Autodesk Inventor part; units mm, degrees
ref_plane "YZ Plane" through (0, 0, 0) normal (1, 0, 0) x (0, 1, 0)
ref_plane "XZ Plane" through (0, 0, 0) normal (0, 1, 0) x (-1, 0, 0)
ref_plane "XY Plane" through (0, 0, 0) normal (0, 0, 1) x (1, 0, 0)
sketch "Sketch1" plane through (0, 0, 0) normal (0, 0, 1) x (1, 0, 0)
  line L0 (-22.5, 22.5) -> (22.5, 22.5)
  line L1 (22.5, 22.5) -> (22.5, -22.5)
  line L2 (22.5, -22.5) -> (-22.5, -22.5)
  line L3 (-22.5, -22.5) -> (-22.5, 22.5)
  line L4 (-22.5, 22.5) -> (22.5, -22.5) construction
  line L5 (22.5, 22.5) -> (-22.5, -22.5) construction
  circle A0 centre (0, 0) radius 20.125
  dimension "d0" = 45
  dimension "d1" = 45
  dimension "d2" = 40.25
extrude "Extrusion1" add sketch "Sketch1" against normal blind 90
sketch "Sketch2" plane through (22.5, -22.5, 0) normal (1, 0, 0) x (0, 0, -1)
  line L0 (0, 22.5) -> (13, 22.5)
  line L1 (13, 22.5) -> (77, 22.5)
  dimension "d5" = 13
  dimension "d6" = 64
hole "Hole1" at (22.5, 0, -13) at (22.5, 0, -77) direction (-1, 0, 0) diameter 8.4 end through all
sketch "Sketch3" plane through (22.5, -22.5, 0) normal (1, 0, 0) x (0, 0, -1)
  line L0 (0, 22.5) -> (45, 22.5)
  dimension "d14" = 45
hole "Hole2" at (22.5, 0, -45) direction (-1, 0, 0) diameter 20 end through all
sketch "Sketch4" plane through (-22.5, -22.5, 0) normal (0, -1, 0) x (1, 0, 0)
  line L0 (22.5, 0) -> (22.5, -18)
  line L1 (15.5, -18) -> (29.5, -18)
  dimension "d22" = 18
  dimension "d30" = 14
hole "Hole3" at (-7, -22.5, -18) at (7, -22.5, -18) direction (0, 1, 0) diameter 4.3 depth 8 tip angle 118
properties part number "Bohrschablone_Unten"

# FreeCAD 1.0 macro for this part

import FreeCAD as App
import Part
import Sketcher
Q = App.Units.Quantity

doc = App.newDocument("Part")
body = doc.addObject("PartDesign::Body", "Body")

sketch1 = body.newObject("Sketcher::SketchObject", "Sketch")
sketch1.AttachmentSupport = (doc.getObject("XY_Plane"), [""])
sketch1.MapMode = "FlatFace"
sketch1.addGeometry([
    Part.LineSegment(App.Vector(22, 22, 0), App.Vector(-22, 22, 0)),
    Part.LineSegment(App.Vector(-22, 22, 0), App.Vector(-22, -22, 0)),
    Part.LineSegment(App.Vector(-22, -22, 0), App.Vector(22, -22, 0)),
    Part.LineSegment(App.Vector(22, -22, 0), App.Vector(22, 22, 0)),
    Part.Circle(App.Vector(0, 0, 0), App.Vector(0, 0, 1), 20),
], False)
sketch1.addConstraint([
    Sketcher.Constraint("Coincident", 0, 2, 1, 1),
    Sketcher.Constraint("Coincident", 1, 2, 2, 1),
    Sketcher.Constraint("Coincident", 2, 2, 3, 1),
    Sketcher.Constraint("Coincident", 3, 2, 0, 1),
    Sketcher.Constraint("Horizontal", 0),
    Sketcher.Constraint("Vertical", 1),
    Sketcher.Constraint("Horizontal", 2),
    Sketcher.Constraint("Vertical", 3),
    Sketcher.Constraint("Coincident", 4, 3, -1, 1),
    Sketcher.Constraint("Symmetric", 0, 2, 2, 2, -1, 1),
    Sketcher.Constraint("Equal", 2, 1),
    Sketcher.Constraint("Diameter", 4, Q("40.25 mm")),
    Sketcher.Constraint("DistanceX", 0, 2, 0, 1, Q("45 mm")),
])
pad1 = body.newObject("PartDesign::Pad", "Pad")
pad1.Profile = sketch1
pad1.Length = 90
pad1.Reversed = True

sketch2 = body.newObject("Sketcher::SketchObject", "Sketch001")
sketch2.AttachmentSupport = (doc.getObject("YZ_Plane"), [""])
sketch2.MapMode = "FlatFace"
sketch2.AttachmentOffset = App.Placement(App.Vector(0, 0, 22.5), App.Rotation())
sketch2.addGeometry([
    Part.Circle(App.Vector(0, -13, 0), App.Vector(0, 0, 1), 4.2),
    Part.Circle(App.Vector(0, -77, 0), App.Vector(0, 0, 1), 4.2),
], False)
sketch2.addConstraint([
    Sketcher.Constraint("Equal", 0, 1),
    Sketcher.Constraint("PointOnObject", 0, 3, -2),
    Sketcher.Constraint("PointOnObject", 1, 3, -2),
    Sketcher.Constraint("Diameter", 0, Q("8.4 mm")),
    Sketcher.Constraint("DistanceY", 0, 3, -1, 1, Q("13 mm")),
    Sketcher.Constraint("DistanceY", 1, 3, -1, 1, Q("77 mm")),
])
doc.recompute()
hole = body.newObject("PartDesign::Hole", "Hole")
hole.Profile = sketch2
hole.ThreadType = "None"
hole.Diameter = 8.4
hole.DepthType = "ThroughAll"

sketch3 = body.newObject("Sketcher::SketchObject", "Sketch002")
sketch3.AttachmentSupport = (doc.getObject("YZ_Plane"), [""])
sketch3.MapMode = "FlatFace"
sketch3.AttachmentOffset = App.Placement(App.Vector(0, 0, 22.5), App.Rotation())
sketch3.addGeometry(Part.Circle(App.Vector(0, -45, 0), App.Vector(0, 0, 1), 10), False)
sketch3.addConstraint([
    Sketcher.Constraint("PointOnObject", 0, 3, -2),
    Sketcher.Constraint("Diameter", 0, Q("20 mm")),
    Sketcher.Constraint("DistanceY", 0, 3, -1, 1, Q("45 mm")),
])
doc.recompute()
hole2 = body.newObject("PartDesign::Hole", "Hole001")
hole2.Profile = sketch3
hole2.ThreadType = "None"
hole2.Diameter = 20
hole2.DepthType = "ThroughAll"

sketch4 = body.newObject("Sketcher::SketchObject", "Sketch003")
sketch4.AttachmentSupport = (doc.getObject("XZ_Plane"), [""])
sketch4.MapMode = "FlatFace"
sketch4.AttachmentOffset = App.Placement(App.Vector(0, 0, 22.5), App.Rotation())
sketch4.addGeometry([
    Part.Circle(App.Vector(-7, -18, 0), App.Vector(0, 0, 1), 2.1),
    Part.Circle(App.Vector(7, -18, 0), App.Vector(0, 0, 1), 2.1),
], False)
sketch4.addConstraint([
    Sketcher.Constraint("Equal", 0, 1),
    Sketcher.Constraint("Symmetric", 0, 3, 1, 3, -2),
    Sketcher.Constraint("Diameter", 0, Q("4.3 mm")),
    Sketcher.Constraint("DistanceX", 0, 3, -1, 1, Q("7 mm")),
    Sketcher.Constraint("DistanceY", 0, 3, -1, 1, Q("18 mm")),
])
doc.recompute()
hole3 = body.newObject("PartDesign::Hole", "Hole002")
hole3.Profile = sketch4
hole3.ThreadType = "None"
hole3.Diameter = 4.3
hole3.DepthType = "Dimension"
hole3.Depth = 8
hole3.DrillPoint = "Angled"
hole3.DrillPointAngle = 118

doc.recompute()
